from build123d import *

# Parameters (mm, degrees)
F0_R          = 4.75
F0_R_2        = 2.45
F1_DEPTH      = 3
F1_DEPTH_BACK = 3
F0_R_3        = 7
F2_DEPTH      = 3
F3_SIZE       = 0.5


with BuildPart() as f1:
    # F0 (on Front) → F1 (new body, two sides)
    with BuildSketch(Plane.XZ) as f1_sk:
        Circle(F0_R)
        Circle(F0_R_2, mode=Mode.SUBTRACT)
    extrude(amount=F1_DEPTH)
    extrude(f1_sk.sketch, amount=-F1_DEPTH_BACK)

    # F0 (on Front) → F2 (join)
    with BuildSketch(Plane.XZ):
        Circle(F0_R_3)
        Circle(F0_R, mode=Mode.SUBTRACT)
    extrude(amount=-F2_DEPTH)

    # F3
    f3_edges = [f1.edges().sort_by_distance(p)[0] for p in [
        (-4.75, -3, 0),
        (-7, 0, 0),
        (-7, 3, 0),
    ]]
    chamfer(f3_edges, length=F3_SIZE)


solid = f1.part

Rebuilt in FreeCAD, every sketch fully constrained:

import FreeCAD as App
import Part
import Sketcher

V = App.Vector
Q = App.Units.Quantity


def edges_at(feature, points):
    """Names of the edges that pass closest to the given points."""
    edges = feature.Shape.Edges
    near = lambda p: min(range(len(edges)), key=lambda i: edges[i].distToShape(Part.Vertex(*p))[0])
    return sorted({f"Edge{near(p) + 1}" for p in points})

doc = App.newDocument("Part")
body = doc.addObject("PartDesign::Body", "Body")

sketch1 = body.newObject("Sketcher::SketchObject", "Sketch")
sketch1.AttachmentSupport = (doc.getObject("XZ_Plane"), [""])
sketch1.MapMode = "FlatFace"
sketch1.addGeometry([
    Part.Circle(V(0, 0, 0), V(0, 0, 1), 4.8),
    Part.Circle(V(0, 0, 0), V(0, 0, 1), 2.5),
], False)
sketch1.addConstraint([
    Sketcher.Constraint("Coincident", 0, 3, -1, 1),
    Sketcher.Constraint("Coincident", 1, 3, -1, 1),
    Sketcher.Constraint("Diameter", 0, Q("9.5 mm")),
    Sketcher.Constraint("Diameter", 1, Q("4.9 mm")),
])
pad1 = body.newObject("PartDesign::Pad", "Pad")
pad1.Profile = sketch1
pad1.Type = "TwoLengths"
pad1.Length = 3
pad1.Length2 = 3

sketch2 = body.newObject("Sketcher::SketchObject", "Sketch001")
sketch2.AttachmentSupport = (doc.getObject("XZ_Plane"), [""])
sketch2.MapMode = "FlatFace"
sketch2.addGeometry([
    Part.Circle(V(0, 0, 0), V(0, 0, 1), 7),
    Part.Circle(V(0, 0, 0), V(0, 0, 1), 4.8),
], False)
sketch2.addConstraint([
    Sketcher.Constraint("Coincident", 0, 3, -1, 1),
    Sketcher.Constraint("Coincident", 1, 3, -1, 1),
    Sketcher.Constraint("Diameter", 0, Q("14 mm")),
    Sketcher.Constraint("Diameter", 1, Q("9.5 mm")),
])
pad2 = body.newObject("PartDesign::Pad", "Pad001")
pad2.Profile = sketch2
pad2.Length = 3
pad2.Reversed = True
doc.recompute()

chamfer = body.newObject("PartDesign::Chamfer", "Chamfer")
chamfer.Base = (pad2, edges_at(pad2, [(-4.75, -3, 0), (-7, 0, 0), (-7, 3, 0)]))
chamfer.Size = 0.5

doc.recompute()
